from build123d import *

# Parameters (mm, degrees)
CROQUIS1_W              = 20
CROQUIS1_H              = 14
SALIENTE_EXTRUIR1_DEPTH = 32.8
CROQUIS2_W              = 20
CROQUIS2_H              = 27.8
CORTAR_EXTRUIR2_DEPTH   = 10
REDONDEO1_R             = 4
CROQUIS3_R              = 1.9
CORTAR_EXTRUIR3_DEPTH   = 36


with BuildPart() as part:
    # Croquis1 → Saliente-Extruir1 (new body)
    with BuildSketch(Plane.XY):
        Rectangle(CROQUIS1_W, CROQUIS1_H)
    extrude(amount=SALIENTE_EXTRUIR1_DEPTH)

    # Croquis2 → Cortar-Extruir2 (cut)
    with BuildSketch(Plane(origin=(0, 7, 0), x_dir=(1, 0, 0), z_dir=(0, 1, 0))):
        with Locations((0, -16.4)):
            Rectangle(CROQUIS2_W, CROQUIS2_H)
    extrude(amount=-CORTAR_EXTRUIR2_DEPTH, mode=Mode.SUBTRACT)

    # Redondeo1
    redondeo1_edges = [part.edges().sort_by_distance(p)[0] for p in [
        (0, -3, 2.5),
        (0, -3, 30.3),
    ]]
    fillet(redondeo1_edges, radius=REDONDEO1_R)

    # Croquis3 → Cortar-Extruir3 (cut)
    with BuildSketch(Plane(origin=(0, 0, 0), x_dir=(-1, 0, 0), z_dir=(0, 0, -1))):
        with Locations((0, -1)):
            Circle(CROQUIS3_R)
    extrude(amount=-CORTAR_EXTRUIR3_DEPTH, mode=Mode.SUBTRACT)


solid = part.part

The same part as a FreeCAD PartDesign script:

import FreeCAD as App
import Part
import Sketcher
Q = App.Units.Quantity


def edges_at(feature, points):
    """Names of the edges that pass closest to the given points."""
    edges = feature.Shape.Edges
    near = lambda p: min(range(len(edges)), key=lambda i: edges[i].distToShape(Part.Vertex(*p))[0])
    return sorted({f"Edge{near(p) + 1}" for p in points})


def add_polygon(sketch, points):
    """Adds a closed chain of lines whose ends are joined by coincident constraints."""
    first, n = sketch.GeometryCount, len(points)
    for a, b in zip(points, points[1:] + points[:1]):
        sketch.addGeometry(Part.LineSegment(App.Vector(*a, 0), App.Vector(*b, 0)), False)
    for i in range(n):
        sketch.addConstraint(Sketcher.Constraint("Coincident", first + i, 2, first + (i + 1) % n, 1))

doc = App.newDocument("Part")
body = doc.addObject("PartDesign::Body", "Body")

# Sketch on XY plane
sketch1 = body.newObject("Sketcher::SketchObject", "Sketch")
sketch1.AttachmentSupport = (doc.getObject("XY_Plane"), [""])
sketch1.MapMode = "FlatFace"
add_polygon(sketch1, [(-10, 7), (-10, -7), (10, -7), (10, 7)])  # lines 0-3
sketch1.addConstraint(Sketcher.Constraint("Vertical", 0))
sketch1.addConstraint(Sketcher.Constraint("Horizontal", 1))
sketch1.addConstraint(Sketcher.Constraint("Vertical", 2))
sketch1.addConstraint(Sketcher.Constraint("Horizontal", 3))
sketch1.addConstraint(Sketcher.Constraint("Symmetric", 0, 2, 2, 2, -1, 1))
sketch1.addConstraint(Sketcher.Constraint("DistanceX", 1, 1, 1, 2, Q("20 mm")))
sketch1.addConstraint(Sketcher.Constraint("DistanceY", 0, 2, 0, 1, Q("14 mm")))
pad1 = body.newObject("PartDesign::Pad", "Pad")
pad1.Profile = sketch1
pad1.Length = 32.8

# Sketch on XZ plane
sketch2 = body.newObject("Sketcher::SketchObject", "Sketch001")
sketch2.AttachmentSupport = (doc.getObject("XZ_Plane"), [""])
sketch2.MapMode = "FlatFace"
sketch2.AttachmentOffset = App.Placement(App.Vector(0, 0, -7), App.Rotation())
add_polygon(sketch2, [(-10, 2), (-10, 30), (10, 30), (10, 2)])  # lines 0-3
sketch2.addConstraint(Sketcher.Constraint("Vertical", 0))
sketch2.addConstraint(Sketcher.Constraint("Horizontal", 1))
sketch2.addConstraint(Sketcher.Constraint("Vertical", 2))
sketch2.addConstraint(Sketcher.Constraint("Horizontal", 3))
sketch2.addConstraint(Sketcher.Constraint("DistanceX", 1, 1, 1, 2, Q("20 mm")))
sketch2.addConstraint(Sketcher.Constraint("DistanceY", 0, 1, 0, 2, Q("27.8 mm")))
sketch2.addConstraint(Sketcher.Constraint("DistanceX", 0, 2, -1, 1, Q("10 mm")))
sketch2.addConstraint(Sketcher.Constraint("DistanceY", -1, 1, 0, 2, Q("30.3 mm")))
pocket1 = body.newObject("PartDesign::Pocket", "Pocket")
pocket1.Profile = sketch2
pocket1.Length = 10
pocket1.Reversed = True
doc.recompute()

fillet = body.newObject("PartDesign::Fillet", "Fillet")
fillet.Base = (pocket1, edges_at(pocket1, [(0, -3, 2.5), (0, -3, 30.3)]))
fillet.Radius = 4

# Sketch on XY plane
sketch3 = body.newObject("Sketcher::SketchObject", "Sketch002")
sketch3.AttachmentSupport = (doc.getObject("XY_Plane"), [""])
sketch3.MapMode = "FlatFace"
sketch3.addGeometry(Part.Circle(App.Vector(0, -1, 0), App.Vector(0, 0, 1), 1.9), False)
sketch3.addConstraint(Sketcher.Constraint("PointOnObject", 0, 3, -2))
sketch3.addConstraint(Sketcher.Constraint("Diameter", 0, Q("3.8 mm")))
sketch3.addConstraint(Sketcher.Constraint("DistanceY", 0, 3, -1, 1, Q("1 mm")))
pocket2 = body.newObject("PartDesign::Pocket", "Pocket001")
pocket2.Profile = sketch3
pocket2.Length = 36
pocket2.Reversed = True

doc.recompute()
